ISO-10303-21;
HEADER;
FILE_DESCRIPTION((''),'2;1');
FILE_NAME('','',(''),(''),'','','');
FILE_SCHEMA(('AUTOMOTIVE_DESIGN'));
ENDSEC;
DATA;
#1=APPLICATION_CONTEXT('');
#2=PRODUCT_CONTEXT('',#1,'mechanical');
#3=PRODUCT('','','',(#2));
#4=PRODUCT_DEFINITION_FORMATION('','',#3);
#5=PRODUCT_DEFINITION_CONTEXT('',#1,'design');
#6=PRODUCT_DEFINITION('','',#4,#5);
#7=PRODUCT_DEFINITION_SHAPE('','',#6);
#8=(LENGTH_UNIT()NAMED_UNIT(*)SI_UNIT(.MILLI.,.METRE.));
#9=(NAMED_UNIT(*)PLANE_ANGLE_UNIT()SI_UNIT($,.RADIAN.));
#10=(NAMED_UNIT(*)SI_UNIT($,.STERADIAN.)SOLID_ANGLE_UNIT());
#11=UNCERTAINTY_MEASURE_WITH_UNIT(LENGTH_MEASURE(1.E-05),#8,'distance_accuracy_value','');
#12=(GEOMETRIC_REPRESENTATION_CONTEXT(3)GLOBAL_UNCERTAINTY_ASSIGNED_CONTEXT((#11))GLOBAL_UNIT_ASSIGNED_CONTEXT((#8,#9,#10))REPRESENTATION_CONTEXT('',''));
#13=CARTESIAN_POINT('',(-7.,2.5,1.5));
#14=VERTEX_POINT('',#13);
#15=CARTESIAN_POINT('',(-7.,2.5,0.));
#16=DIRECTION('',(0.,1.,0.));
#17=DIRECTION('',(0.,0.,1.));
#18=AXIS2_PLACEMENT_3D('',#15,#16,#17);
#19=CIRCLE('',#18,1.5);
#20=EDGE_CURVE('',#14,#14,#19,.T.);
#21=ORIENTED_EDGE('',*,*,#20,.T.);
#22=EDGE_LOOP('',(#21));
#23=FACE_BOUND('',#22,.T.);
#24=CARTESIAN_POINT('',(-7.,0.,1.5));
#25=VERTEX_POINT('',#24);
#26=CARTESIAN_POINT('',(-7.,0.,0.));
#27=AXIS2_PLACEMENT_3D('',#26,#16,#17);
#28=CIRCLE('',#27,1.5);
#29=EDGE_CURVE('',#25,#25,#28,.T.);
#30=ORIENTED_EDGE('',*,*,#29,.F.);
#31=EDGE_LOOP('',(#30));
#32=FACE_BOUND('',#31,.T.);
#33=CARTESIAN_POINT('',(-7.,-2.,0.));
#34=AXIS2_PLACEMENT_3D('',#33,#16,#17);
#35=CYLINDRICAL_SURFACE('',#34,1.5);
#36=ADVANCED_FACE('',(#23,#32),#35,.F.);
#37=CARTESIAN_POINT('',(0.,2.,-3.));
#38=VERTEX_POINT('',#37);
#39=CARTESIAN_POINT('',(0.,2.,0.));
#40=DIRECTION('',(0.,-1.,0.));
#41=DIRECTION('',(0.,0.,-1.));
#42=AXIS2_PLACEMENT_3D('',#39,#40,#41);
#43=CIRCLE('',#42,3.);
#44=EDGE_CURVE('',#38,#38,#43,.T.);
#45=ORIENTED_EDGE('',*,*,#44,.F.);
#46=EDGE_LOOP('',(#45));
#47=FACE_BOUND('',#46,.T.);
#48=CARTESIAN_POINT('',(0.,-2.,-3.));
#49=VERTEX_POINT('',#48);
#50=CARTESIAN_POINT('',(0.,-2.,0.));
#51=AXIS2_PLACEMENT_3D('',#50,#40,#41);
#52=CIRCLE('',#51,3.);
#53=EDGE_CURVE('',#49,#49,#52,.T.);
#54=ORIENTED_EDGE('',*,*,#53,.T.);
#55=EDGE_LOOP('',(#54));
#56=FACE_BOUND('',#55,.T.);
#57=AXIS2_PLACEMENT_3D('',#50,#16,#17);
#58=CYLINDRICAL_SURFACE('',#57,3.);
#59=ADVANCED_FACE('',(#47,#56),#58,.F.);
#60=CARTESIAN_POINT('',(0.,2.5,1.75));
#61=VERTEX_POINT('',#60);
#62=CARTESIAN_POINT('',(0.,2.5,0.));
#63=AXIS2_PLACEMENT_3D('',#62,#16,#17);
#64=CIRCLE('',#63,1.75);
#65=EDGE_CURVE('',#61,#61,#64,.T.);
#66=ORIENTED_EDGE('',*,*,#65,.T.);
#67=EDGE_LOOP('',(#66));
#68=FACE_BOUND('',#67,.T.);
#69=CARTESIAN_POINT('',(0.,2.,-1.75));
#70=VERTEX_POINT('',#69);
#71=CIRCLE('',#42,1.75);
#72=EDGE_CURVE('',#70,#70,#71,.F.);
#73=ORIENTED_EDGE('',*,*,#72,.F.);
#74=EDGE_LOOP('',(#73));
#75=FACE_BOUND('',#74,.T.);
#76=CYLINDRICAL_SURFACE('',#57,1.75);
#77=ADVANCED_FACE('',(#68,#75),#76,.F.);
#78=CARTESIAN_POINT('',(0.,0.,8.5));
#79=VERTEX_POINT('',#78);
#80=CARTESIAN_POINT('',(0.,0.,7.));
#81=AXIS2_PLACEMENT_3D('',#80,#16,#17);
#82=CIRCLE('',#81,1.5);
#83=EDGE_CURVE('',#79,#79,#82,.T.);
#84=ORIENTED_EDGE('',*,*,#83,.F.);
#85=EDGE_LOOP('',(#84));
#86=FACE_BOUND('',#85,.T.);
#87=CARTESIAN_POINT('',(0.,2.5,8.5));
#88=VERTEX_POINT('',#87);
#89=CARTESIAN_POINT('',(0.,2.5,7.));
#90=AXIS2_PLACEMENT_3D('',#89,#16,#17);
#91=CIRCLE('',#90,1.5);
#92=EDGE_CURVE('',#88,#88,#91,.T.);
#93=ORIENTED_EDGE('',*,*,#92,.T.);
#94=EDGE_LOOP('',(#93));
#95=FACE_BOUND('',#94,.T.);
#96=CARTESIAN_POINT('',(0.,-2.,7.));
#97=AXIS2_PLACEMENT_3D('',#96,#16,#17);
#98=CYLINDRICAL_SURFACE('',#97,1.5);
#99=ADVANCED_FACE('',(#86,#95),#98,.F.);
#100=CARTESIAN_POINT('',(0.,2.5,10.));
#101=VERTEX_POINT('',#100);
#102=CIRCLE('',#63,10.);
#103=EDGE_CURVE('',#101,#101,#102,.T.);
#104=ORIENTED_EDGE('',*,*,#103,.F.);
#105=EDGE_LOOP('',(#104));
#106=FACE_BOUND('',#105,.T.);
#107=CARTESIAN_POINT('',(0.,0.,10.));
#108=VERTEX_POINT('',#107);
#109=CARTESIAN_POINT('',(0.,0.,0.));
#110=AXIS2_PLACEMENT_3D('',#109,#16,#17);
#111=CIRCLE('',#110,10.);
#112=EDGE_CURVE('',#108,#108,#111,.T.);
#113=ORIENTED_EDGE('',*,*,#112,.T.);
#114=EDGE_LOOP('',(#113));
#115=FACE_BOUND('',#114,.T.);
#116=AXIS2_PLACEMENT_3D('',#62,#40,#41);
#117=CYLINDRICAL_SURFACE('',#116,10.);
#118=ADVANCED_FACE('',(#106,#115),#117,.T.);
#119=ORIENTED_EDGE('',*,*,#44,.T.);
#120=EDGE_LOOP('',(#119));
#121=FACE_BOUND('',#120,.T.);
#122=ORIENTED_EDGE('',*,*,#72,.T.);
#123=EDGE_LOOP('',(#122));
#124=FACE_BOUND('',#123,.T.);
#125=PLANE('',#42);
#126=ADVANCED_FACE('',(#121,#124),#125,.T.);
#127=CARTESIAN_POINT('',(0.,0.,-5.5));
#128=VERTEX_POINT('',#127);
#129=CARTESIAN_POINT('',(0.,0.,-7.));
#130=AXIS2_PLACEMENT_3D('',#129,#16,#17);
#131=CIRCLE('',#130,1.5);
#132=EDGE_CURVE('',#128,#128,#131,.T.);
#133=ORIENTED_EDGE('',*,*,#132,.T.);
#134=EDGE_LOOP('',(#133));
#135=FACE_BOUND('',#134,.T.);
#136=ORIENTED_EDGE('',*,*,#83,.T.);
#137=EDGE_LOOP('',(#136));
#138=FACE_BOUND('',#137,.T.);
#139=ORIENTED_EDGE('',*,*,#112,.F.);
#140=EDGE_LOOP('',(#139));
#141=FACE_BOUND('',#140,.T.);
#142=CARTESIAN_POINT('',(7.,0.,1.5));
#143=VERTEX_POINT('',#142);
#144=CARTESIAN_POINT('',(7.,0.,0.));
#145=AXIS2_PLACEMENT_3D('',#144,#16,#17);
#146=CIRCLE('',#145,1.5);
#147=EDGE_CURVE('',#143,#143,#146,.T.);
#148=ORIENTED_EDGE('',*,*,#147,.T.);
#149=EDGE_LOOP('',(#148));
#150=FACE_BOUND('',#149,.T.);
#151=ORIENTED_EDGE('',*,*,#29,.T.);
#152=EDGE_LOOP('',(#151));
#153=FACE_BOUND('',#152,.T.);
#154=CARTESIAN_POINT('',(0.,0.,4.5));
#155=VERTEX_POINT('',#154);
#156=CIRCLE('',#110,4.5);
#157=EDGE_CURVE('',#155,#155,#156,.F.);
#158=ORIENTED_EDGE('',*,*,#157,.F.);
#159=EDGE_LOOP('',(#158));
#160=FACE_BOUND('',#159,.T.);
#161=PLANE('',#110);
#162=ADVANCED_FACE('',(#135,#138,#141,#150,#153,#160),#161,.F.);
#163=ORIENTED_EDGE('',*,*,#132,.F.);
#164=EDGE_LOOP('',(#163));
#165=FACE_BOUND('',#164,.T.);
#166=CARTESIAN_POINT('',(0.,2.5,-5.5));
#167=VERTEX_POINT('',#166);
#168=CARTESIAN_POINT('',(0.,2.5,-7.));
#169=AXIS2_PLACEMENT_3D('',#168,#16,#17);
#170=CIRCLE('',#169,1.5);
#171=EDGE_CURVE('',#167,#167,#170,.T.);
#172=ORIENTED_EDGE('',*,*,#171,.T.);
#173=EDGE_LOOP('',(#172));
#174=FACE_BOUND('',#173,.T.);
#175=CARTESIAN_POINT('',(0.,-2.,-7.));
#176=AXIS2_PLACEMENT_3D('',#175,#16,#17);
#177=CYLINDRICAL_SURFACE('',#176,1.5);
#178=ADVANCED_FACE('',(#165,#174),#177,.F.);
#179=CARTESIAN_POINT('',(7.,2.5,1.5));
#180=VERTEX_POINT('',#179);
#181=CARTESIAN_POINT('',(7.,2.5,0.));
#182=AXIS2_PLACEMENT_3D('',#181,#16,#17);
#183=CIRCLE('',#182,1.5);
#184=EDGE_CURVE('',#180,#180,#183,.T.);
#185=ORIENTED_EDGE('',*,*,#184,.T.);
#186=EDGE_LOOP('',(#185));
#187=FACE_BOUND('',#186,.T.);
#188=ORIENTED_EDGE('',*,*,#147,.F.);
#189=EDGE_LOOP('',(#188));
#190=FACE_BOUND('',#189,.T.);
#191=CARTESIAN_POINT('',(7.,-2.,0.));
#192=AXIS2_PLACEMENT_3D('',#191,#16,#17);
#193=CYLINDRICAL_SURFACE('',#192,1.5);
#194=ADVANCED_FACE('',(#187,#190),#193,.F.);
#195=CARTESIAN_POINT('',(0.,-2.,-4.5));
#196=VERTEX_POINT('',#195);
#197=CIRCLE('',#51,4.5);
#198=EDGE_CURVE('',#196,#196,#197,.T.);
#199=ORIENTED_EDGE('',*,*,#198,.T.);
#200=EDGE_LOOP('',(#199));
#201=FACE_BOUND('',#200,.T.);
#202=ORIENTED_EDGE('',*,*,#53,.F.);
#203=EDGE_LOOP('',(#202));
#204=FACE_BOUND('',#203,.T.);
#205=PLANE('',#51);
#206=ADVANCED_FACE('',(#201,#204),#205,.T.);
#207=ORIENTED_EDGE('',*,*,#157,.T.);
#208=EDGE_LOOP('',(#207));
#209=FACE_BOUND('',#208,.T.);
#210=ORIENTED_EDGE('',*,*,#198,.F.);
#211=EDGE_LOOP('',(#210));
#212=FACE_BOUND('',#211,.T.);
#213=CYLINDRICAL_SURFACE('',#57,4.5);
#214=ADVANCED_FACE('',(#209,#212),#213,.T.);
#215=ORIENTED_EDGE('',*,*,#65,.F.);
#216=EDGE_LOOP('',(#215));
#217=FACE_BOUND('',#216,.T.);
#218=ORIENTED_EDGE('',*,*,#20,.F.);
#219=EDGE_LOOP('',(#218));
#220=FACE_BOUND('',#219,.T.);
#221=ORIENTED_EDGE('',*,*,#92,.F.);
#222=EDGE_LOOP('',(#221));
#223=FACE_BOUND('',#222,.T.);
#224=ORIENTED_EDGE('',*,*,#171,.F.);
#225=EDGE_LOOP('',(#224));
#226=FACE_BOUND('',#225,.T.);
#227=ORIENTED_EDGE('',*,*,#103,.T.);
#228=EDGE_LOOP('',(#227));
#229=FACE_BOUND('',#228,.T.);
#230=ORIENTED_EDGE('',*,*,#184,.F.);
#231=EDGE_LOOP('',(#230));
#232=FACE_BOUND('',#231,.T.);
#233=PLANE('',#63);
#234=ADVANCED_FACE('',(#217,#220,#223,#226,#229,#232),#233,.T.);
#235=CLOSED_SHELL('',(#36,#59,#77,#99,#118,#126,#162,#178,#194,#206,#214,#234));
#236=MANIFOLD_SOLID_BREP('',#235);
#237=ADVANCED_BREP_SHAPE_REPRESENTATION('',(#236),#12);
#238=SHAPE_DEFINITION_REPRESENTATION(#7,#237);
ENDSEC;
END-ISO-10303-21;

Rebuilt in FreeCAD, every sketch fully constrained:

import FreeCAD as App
import Part
import Sketcher

V = App.Vector
Q = App.Units.Quantity

doc = App.newDocument("Part")
body = doc.addObject("PartDesign::Body", "Body")

sketch1 = body.newObject("Sketcher::SketchObject", "Sketch")
sketch1.AttachmentSupport = (doc.getObject("XZ_Plane"), [""])
sketch1.MapMode = "FlatFace"
sketch1.addGeometry(Part.Circle(V(0, 0, 0), V(0, 0, 1), 10), False)
sketch1.addConstraint([
    Sketcher.Constraint("Coincident", 0, 3, -1, 1),
    Sketcher.Constraint("Diameter", 0, Q("20 mm")),
])
pad1 = body.newObject("PartDesign::Pad", "Pad")
pad1.Profile = sketch1
pad1.Length = 2.5
pad1.Reversed = True

sketch2 = body.newObject("Sketcher::SketchObject", "Sketch001")
sketch2.AttachmentSupport = (doc.getObject("XZ_Plane"), [""])
sketch2.MapMode = "FlatFace"
sketch2.addGeometry([
    Part.Circle(V(0, 0, 0), V(0, 0, 1), 4.5),
    Part.Circle(V(0, 0, 0), V(0, 0, 1), 3),
], False)
sketch2.addConstraint([
    Sketcher.Constraint("Coincident", 0, 3, -1, 1),
    Sketcher.Constraint("Coincident", 1, 3, -1, 1),
    Sketcher.Constraint("Diameter", 0, Q("9 mm")),
    Sketcher.Constraint("Diameter", 1, Q("6 mm")),
])
pad2 = body.newObject("PartDesign::Pad", "Pad001")
pad2.Profile = sketch2
pad2.Length = 2

sketch3 = body.newObject("Sketcher::SketchObject", "Sketch002")
sketch3.AttachmentSupport = (doc.getObject("XZ_Plane"), [""])
sketch3.MapMode = "FlatFace"
sketch3.AttachmentOffset = App.Placement(V(0, 0, -2.5), App.Rotation())
sketch3.addGeometry([
    Part.Circle(V(0, -7, 0), V(0, 0, 1), 1.5),
    Part.Circle(V(7, 0, 0), V(0, 0, 1), 1.5),
    Part.Circle(V(0, 7, 0), V(0, 0, 1), 1.5),
    Part.Circle(V(-7, 0, 0), V(0, 0, 1), 1.5),
    Part.Circle(V(0, 0, 0), V(0, 0, 1), 1.8),
], False)
sketch3.addConstraint([
    Sketcher.Constraint("Coincident", 4, 3, -1, 1),
    Sketcher.Constraint("Equal", 0, 1),
    Sketcher.Constraint("Equal", 1, 2),
    Sketcher.Constraint("Equal", 2, 3),
    Sketcher.Constraint("Symmetric", 0, 3, 2, 3, -1, 1),
    Sketcher.Constraint("Symmetric", 1, 3, 3, 3, -1, 1),
    Sketcher.Constraint("PointOnObject", 0, 3, -2),
    Sketcher.Constraint("PointOnObject", 1, 3, -1),
    Sketcher.Constraint("Diameter", 0, Q("3 mm")),
    Sketcher.Constraint("Diameter", 4, Q("3.5 mm")),
    Sketcher.Constraint("DistanceY", 0, 3, -1, 1, Q("7 mm")),
    Sketcher.Constraint("DistanceX", -1, 1, 1, 3, Q("7 mm")),
])
pocket1 = body.newObject("PartDesign::Pocket", "Pocket")
pocket1.Profile = sketch3
pocket1.Type = "ThroughAll"
pocket1.Reversed = True

sketch4 = body.newObject("Sketcher::SketchObject", "Sketch003")
sketch4.AttachmentSupport = (doc.getObject("XZ_Plane"), [""])
sketch4.MapMode = "FlatFace"
sketch4.addGeometry(Part.Circle(V(0, 0, 0), V(0, 0, 1), 3), False)
sketch4.addConstraint([
    Sketcher.Constraint("Coincident", 0, 3, -1, 1),
    Sketcher.Constraint("Diameter", 0, Q("6 mm")),
])
pocket2 = body.newObject("PartDesign::Pocket", "Pocket001")
pocket2.Profile = sketch4
pocket2.Length = 2

doc.recompute()
